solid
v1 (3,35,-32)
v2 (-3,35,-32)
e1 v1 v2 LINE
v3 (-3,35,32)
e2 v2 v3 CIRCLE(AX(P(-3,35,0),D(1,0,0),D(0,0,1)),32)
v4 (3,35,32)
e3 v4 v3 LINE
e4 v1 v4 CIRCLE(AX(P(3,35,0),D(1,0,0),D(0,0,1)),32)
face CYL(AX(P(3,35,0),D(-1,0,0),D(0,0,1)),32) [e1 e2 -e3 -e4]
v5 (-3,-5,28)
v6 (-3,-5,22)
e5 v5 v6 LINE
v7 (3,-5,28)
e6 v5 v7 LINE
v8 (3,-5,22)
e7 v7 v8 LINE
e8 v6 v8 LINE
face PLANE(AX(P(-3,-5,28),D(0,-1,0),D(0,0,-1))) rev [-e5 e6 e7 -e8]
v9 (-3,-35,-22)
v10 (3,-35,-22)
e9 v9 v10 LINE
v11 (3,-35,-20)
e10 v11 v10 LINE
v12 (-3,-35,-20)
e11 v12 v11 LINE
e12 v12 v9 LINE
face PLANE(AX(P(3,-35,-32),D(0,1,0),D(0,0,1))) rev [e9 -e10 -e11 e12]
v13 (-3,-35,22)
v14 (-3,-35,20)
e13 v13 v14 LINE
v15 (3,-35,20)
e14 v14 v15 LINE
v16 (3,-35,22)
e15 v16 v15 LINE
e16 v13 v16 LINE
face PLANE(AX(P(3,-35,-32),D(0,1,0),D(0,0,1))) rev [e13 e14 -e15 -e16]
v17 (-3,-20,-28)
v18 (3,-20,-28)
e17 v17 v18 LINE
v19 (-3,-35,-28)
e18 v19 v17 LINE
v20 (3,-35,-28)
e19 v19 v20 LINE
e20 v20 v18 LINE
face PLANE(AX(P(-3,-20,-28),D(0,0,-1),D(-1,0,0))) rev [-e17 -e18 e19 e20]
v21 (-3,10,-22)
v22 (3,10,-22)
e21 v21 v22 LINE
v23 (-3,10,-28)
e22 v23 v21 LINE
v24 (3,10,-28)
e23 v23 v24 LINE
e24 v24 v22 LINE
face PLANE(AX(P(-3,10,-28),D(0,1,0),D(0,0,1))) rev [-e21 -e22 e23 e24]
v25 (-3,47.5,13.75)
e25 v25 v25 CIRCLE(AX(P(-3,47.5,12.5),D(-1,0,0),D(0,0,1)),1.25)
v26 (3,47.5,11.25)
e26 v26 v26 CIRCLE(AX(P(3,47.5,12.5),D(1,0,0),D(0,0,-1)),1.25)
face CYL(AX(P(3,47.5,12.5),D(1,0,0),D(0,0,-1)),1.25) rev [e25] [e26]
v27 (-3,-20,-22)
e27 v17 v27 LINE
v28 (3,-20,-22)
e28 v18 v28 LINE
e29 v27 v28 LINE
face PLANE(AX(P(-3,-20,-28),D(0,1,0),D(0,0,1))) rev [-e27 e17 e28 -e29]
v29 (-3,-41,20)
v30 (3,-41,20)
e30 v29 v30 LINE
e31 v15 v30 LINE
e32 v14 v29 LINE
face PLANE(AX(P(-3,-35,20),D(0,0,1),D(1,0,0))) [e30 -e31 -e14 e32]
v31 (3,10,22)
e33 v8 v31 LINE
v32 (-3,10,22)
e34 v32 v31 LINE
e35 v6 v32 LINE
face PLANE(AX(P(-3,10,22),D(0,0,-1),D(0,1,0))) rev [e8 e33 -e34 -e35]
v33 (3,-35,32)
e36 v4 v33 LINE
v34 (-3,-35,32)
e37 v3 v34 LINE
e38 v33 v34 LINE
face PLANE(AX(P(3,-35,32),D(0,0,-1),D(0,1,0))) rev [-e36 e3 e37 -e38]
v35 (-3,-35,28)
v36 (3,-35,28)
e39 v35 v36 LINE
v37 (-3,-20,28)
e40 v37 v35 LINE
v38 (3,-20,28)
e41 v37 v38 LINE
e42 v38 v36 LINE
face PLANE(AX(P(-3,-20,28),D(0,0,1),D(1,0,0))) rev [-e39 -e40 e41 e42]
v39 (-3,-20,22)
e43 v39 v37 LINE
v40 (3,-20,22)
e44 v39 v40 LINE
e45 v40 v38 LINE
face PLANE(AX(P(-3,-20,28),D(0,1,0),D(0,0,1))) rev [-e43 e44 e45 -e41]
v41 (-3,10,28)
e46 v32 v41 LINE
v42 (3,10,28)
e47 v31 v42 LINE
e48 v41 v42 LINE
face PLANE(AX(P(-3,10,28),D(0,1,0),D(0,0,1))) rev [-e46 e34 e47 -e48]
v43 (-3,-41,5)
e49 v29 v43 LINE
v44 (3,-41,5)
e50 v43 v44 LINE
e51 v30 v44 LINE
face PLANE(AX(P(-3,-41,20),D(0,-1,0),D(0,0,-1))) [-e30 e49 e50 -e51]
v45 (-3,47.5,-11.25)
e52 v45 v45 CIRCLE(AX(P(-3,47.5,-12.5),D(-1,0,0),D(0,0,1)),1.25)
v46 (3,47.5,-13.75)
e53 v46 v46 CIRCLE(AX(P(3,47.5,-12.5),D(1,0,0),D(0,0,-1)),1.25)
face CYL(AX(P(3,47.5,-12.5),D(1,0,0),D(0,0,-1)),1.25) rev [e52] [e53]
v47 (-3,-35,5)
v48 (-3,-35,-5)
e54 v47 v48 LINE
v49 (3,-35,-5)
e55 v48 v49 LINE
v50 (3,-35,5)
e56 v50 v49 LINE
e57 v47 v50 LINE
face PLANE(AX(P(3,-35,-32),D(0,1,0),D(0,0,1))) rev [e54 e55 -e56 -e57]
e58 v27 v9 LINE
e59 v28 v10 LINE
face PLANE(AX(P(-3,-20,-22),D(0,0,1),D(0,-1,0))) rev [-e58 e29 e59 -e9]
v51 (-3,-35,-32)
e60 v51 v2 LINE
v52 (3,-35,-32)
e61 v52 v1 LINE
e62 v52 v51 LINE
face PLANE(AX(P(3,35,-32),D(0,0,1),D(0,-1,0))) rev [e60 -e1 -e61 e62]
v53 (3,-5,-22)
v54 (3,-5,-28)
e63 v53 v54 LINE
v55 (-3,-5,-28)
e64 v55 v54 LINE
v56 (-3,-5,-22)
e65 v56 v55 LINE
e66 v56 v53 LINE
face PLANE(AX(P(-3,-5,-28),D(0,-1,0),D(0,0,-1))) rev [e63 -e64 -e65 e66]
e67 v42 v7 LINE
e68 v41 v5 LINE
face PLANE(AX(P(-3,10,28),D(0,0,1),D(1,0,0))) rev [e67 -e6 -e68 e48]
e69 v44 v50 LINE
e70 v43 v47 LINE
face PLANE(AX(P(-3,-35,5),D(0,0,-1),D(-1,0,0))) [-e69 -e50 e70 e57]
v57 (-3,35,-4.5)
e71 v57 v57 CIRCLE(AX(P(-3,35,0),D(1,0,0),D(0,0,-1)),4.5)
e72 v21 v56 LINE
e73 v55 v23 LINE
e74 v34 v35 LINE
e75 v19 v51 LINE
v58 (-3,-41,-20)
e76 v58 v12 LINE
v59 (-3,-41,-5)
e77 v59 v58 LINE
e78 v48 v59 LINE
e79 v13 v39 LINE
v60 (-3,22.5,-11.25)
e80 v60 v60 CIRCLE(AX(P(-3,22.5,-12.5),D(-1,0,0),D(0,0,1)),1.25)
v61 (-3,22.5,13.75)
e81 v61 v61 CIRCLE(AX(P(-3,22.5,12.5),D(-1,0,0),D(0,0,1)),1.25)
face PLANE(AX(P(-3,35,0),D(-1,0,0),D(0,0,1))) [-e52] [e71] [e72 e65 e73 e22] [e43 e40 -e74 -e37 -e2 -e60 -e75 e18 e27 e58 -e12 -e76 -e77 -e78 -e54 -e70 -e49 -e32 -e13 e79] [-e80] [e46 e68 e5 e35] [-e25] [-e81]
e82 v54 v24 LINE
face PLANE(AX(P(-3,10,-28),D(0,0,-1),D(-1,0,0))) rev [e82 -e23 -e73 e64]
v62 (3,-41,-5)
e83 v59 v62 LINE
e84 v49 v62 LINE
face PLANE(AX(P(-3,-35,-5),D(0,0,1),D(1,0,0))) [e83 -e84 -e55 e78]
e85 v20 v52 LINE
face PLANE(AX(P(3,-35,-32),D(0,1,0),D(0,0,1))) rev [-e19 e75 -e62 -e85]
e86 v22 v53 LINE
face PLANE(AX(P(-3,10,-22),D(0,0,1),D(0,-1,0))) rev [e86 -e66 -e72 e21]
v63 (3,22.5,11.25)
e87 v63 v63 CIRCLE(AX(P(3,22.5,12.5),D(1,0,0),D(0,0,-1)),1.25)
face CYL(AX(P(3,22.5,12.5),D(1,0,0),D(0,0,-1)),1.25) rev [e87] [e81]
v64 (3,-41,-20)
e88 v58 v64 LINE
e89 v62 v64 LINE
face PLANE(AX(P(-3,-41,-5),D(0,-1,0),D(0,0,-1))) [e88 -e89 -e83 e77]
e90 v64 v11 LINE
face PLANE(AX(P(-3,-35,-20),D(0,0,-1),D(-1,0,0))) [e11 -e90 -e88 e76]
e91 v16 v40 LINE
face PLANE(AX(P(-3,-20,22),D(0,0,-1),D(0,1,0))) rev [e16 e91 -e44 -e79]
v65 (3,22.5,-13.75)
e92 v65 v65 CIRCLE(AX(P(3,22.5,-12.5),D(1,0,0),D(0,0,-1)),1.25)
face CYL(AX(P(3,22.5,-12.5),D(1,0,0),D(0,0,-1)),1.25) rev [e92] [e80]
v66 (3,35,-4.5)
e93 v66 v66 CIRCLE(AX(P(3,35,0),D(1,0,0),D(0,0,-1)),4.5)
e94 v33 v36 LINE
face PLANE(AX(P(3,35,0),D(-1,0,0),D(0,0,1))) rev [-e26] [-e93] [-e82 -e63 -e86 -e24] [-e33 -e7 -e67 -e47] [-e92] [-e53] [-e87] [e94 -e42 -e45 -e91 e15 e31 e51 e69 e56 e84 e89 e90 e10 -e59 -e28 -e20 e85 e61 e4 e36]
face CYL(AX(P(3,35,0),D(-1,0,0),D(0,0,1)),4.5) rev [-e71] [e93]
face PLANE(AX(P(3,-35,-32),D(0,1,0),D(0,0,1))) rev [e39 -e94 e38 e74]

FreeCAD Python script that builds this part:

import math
import FreeCAD as App
import Part
import Sketcher
from FreeCAD import Vector
Q = App.Units.Quantity

doc = App.newDocument("Part")
body = doc.addObject("PartDesign::Body", "Body")

sketch1 = body.newObject("Sketcher::SketchObject", "Sketch")
sketch1.AttachmentSupport = (doc.getObject("YZ_Plane"), [""])
sketch1.MapMode = "FlatFace"
sketch1.addGeometry([
    Part.LineSegment(Vector(35, 32, 0), Vector(-35, 32, 0)),
    Part.LineSegment(Vector(-35, 32, 0), Vector(-35, -32, 0)),
    Part.LineSegment(Vector(-35, -32, 0), Vector(35, -32, 0)),
    Part.ArcOfCircle(Part.Circle(Vector(35, 0, 0), Vector(0, 0, 1), 32), math.radians(-90), math.radians(90)),
    Part.Circle(Vector(35, 0, 0), Vector(0, 0, 1), 4.5),
], False)
sketch1.addConstraint([
    Sketcher.Constraint("Coincident", 0, 2, 1, 1),
    Sketcher.Constraint("Coincident", 1, 2, 2, 1),
    Sketcher.Constraint("Tangent", 2, 2, 3, 1),
    Sketcher.Constraint("Tangent", 3, 2, 0, 1),
    Sketcher.Constraint("Horizontal", 0),
    Sketcher.Constraint("Vertical", 1),
    Sketcher.Constraint("Horizontal", 2),
    Sketcher.Constraint("Coincident", 4, 3, 3, 3),
    Sketcher.Constraint("Symmetric", 0, 2, 2, 2, -1, 1),
    Sketcher.Constraint("Diameter", 4, Q("9 mm")),
    Sketcher.Constraint("Radius", 3, Q("32 mm")),
    Sketcher.Constraint("DistanceX", 0, 2, 0, 1, Q("70 mm")),
])
pad1 = body.newObject("PartDesign::Pad", "Pad")
pad1.Profile = sketch1
pad1.Length = 6
pad1.Midplane = True

sketch2 = body.newObject("Sketcher::SketchObject", "Sketch001")
sketch2.AttachmentSupport = (doc.getObject("YZ_Plane"), [""])
sketch2.MapMode = "FlatFace"
sketch2.AttachmentOffset = App.Placement(Vector(0, 0, 3), App.Rotation())
sketch2.addGeometry([
    Part.Circle(Vector(47.5, -12.5, 0), Vector(0, 0, 1), 1.25),
    Part.Circle(Vector(22.5, -12.5, 0), Vector(0, 0, 1), 1.25),
    Part.Circle(Vector(22.5, 12.5, 0), Vector(0, 0, 1), 1.25),
    Part.Circle(Vector(47.5, 12.5, 0), Vector(0, 0, 1), 1.25),
], False)
sketch2.addConstraint([
    Sketcher.Constraint("Equal", 0, 1),
    Sketcher.Constraint("Equal", 1, 2),
    Sketcher.Constraint("Equal", 2, 3),
    Sketcher.Constraint("Symmetric", 1, 3, 2, 3, -1),
    Sketcher.Constraint("Symmetric", 0, 3, 3, 3, -1),
    Sketcher.Constraint("Horizontal", 0, 3, 1, 3),
    Sketcher.Constraint("Diameter", 0, Q("2.5 mm")),
    Sketcher.Constraint("DistanceX", 1, 3, 0, 3, Q("25 mm")),
    Sketcher.Constraint("DistanceY", 1, 3, 2, 3, Q("25 mm")),
    Sketcher.Constraint("DistanceX", -1, 1, 0, 3, Q("47.5 mm")),
])
doc.recompute()
hole = body.newObject("PartDesign::Hole", "Hole")
hole.Profile = sketch2
hole.ThreadType = "None"
hole.Diameter = 2.5
hole.DepthType = "ThroughAll"

sketch3 = body.newObject("Sketcher::SketchObject", "Sketch002")
sketch3.AttachmentSupport = (doc.getObject("YZ_Plane"), [""])
sketch3.MapMode = "FlatFace"
sketch3.AttachmentOffset = App.Placement(Vector(0, 0, 3), App.Rotation())
sketch3.addGeometry([
    Part.LineSegment(Vector(10, 28, 0), Vector(-5, 28, 0)),
    Part.LineSegment(Vector(-5, 28, 0), Vector(-5, 22, 0)),
    Part.LineSegment(Vector(-5, 22, 0), Vector(10, 22, 0)),
    Part.LineSegment(Vector(10, 22, 0), Vector(10, 28, 0)),
    Part.LineSegment(Vector(-20, 28, 0), Vector(-35, 28, 0)),
    Part.LineSegment(Vector(-35, 28, 0), Vector(-35, 22, 0)),
    Part.LineSegment(Vector(-35, 22, 0), Vector(-20, 22, 0)),
    Part.LineSegment(Vector(-20, 22, 0), Vector(-20, 28, 0)),
    Part.LineSegment(Vector(-20, -22, 0), Vector(-35, -22, 0)),
    Part.LineSegment(Vector(-35, -22, 0), Vector(-35, -28, 0)),
    Part.LineSegment(Vector(-35, -28, 0), Vector(-20, -28, 0)),
    Part.LineSegment(Vector(-20, -28, 0), Vector(-20, -22, 0)),
    Part.LineSegment(Vector(10, -22, 0), Vector(-5, -22, 0)),
    Part.LineSegment(Vector(-5, -22, 0), Vector(-5, -28, 0)),
    Part.LineSegment(Vector(-5, -28, 0), Vector(10, -28, 0)),
    Part.LineSegment(Vector(10, -28, 0), Vector(10, -22, 0)),
], False)
sketch3.addConstraint([
    Sketcher.Constraint("Coincident", 0, 2, 1, 1),
    Sketcher.Constraint("Coincident", 1, 2, 2, 1),
    Sketcher.Constraint("Coincident", 2, 2, 3, 1),
    Sketcher.Constraint("Coincident", 3, 2, 0, 1),
    Sketcher.Constraint("Coincident", 4, 2, 5, 1),
    Sketcher.Constraint("Coincident", 5, 2, 6, 1),
    Sketcher.Constraint("Coincident", 6, 2, 7, 1),
    Sketcher.Constraint("Coincident", 7, 2, 4, 1),
    Sketcher.Constraint("Coincident", 8, 2, 9, 1),
    Sketcher.Constraint("Coincident", 9, 2, 10, 1),
    Sketcher.Constraint("Coincident", 10, 2, 11, 1),
    Sketcher.Constraint("Coincident", 11, 2, 8, 1),
    Sketcher.Constraint("Coincident", 12, 2, 13, 1),
    Sketcher.Constraint("Coincident", 13, 2, 14, 1),
    Sketcher.Constraint("Coincident", 14, 2, 15, 1),
    Sketcher.Constraint("Coincident", 15, 2, 12, 1),
    Sketcher.Constraint("Horizontal", 0),
    Sketcher.Constraint("Vertical", 1),
    Sketcher.Constraint("Horizontal", 2),
    Sketcher.Constraint("Vertical", 3),
    Sketcher.Constraint("Horizontal", 4),
    Sketcher.Constraint("Vertical", 5),
    Sketcher.Constraint("Horizontal", 6),
    Sketcher.Constraint("Vertical", 7),
    Sketcher.Constraint("Horizontal", 8),
    Sketcher.Constraint("Vertical", 9),
    Sketcher.Constraint("Horizontal", 10),
    Sketcher.Constraint("Vertical", 11),
    Sketcher.Constraint("Horizontal", 12),
    Sketcher.Constraint("Vertical", 13),
    Sketcher.Constraint("Horizontal", 14),
    Sketcher.Constraint("Vertical", 15),
    Sketcher.Constraint("Symmetric", 5, 2, 8, 2, -1),
    Sketcher.Constraint("Symmetric", 7, 2, 10, 2, -1),
    Sketcher.Constraint("Symmetric", 1, 2, 12, 2, -1),
    Sketcher.Constraint("Symmetric", 3, 2, 14, 2, -1),
    Sketcher.Constraint("Horizontal", 3, 2, 4, 2),
    Sketcher.Constraint("Horizontal", 2, 2, 5, 2),
    Sketcher.Constraint("Equal", 2, 4),
    Sketcher.Constraint("DistanceX", 0, 2, 0, 1, Q("15 mm")),
    Sketcher.Constraint("DistanceY", 1, 2, 1, 1, Q("6 mm")),
    Sketcher.Constraint("DistanceX", 0, 2, -1, 1, Q("5 mm")),
    Sketcher.Constraint("DistanceY", -1, 1, 0, 2, Q("28 mm")),
    Sketcher.Constraint("DistanceX", 4, 2, -1, 1, Q("35 mm")),
])
pocket1 = body.newObject("PartDesign::Pocket", "Pocket")
pocket1.Profile = sketch3
pocket1.Type = "ThroughAll"

sketch4 = body.newObject("Sketcher::SketchObject", "Sketch003")
sketch4.AttachmentSupport = (doc.getObject("YZ_Plane"), [""])
sketch4.MapMode = "FlatFace"
sketch4.AttachmentOffset = App.Placement(Vector(0, 0, 3), App.Rotation())
sketch4.addGeometry([
    Part.LineSegment(Vector(-35, 20, 0), Vector(-41, 20, 0)),
    Part.LineSegment(Vector(-41, 20, 0), Vector(-41, 5, 0)),
    Part.LineSegment(Vector(-41, 5, 0), Vector(-35, 5, 0)),
    Part.LineSegment(Vector(-35, 5, 0), Vector(-35, 20, 0)),
    Part.LineSegment(Vector(-35, -5, 0), Vector(-41, -5, 0)),
    Part.LineSegment(Vector(-41, -5, 0), Vector(-41, -20, 0)),
    Part.LineSegment(Vector(-41, -20, 0), Vector(-35, -20, 0)),
    Part.LineSegment(Vector(-35, -20, 0), Vector(-35, -5, 0)),
], False)
sketch4.addConstraint([
    Sketcher.Constraint("Coincident", 0, 2, 1, 1),
    Sketcher.Constraint("Coincident", 1, 2, 2, 1),
    Sketcher.Constraint("Coincident", 2, 2, 3, 1),
    Sketcher.Constraint("Coincident", 3, 2, 0, 1),
    Sketcher.Constraint("Coincident", 4, 2, 5, 1),
    Sketcher.Constraint("Coincident", 5, 2, 6, 1),
    Sketcher.Constraint("Coincident", 6, 2, 7, 1),
    Sketcher.Constraint("Coincident", 7, 2, 4, 1),
    Sketcher.Constraint("Horizontal", 0),
    Sketcher.Constraint("Vertical", 1),
    Sketcher.Constraint("Horizontal", 2),
    Sketcher.Constraint("Vertical", 3),
    Sketcher.Constraint("Horizontal", 4),
    Sketcher.Constraint("Vertical", 5),
    Sketcher.Constraint("Horizontal", 6),
    Sketcher.Constraint("Vertical", 7),
    Sketcher.Constraint("Symmetric", 1, 2, 4, 2, -1),
    Sketcher.Constraint("Symmetric", 3, 2, 6, 2, -1),
    Sketcher.Constraint("DistanceX", 0, 2, 0, 1, Q("6 mm")),
    Sketcher.Constraint("DistanceY", 1, 2, 1, 1, Q("15 mm")),
    Sketcher.Constraint("DistanceX", 0, 2, -1, 1, Q("41 mm")),
    Sketcher.Constraint("DistanceY", -1, 1, 0, 2, Q("20 mm")),
])
pad2 = body.newObject("PartDesign::Pad", "Pad001")
pad2.Profile = sketch4
pad2.Length = 6
pad2.Reversed = True

doc.recompute()
